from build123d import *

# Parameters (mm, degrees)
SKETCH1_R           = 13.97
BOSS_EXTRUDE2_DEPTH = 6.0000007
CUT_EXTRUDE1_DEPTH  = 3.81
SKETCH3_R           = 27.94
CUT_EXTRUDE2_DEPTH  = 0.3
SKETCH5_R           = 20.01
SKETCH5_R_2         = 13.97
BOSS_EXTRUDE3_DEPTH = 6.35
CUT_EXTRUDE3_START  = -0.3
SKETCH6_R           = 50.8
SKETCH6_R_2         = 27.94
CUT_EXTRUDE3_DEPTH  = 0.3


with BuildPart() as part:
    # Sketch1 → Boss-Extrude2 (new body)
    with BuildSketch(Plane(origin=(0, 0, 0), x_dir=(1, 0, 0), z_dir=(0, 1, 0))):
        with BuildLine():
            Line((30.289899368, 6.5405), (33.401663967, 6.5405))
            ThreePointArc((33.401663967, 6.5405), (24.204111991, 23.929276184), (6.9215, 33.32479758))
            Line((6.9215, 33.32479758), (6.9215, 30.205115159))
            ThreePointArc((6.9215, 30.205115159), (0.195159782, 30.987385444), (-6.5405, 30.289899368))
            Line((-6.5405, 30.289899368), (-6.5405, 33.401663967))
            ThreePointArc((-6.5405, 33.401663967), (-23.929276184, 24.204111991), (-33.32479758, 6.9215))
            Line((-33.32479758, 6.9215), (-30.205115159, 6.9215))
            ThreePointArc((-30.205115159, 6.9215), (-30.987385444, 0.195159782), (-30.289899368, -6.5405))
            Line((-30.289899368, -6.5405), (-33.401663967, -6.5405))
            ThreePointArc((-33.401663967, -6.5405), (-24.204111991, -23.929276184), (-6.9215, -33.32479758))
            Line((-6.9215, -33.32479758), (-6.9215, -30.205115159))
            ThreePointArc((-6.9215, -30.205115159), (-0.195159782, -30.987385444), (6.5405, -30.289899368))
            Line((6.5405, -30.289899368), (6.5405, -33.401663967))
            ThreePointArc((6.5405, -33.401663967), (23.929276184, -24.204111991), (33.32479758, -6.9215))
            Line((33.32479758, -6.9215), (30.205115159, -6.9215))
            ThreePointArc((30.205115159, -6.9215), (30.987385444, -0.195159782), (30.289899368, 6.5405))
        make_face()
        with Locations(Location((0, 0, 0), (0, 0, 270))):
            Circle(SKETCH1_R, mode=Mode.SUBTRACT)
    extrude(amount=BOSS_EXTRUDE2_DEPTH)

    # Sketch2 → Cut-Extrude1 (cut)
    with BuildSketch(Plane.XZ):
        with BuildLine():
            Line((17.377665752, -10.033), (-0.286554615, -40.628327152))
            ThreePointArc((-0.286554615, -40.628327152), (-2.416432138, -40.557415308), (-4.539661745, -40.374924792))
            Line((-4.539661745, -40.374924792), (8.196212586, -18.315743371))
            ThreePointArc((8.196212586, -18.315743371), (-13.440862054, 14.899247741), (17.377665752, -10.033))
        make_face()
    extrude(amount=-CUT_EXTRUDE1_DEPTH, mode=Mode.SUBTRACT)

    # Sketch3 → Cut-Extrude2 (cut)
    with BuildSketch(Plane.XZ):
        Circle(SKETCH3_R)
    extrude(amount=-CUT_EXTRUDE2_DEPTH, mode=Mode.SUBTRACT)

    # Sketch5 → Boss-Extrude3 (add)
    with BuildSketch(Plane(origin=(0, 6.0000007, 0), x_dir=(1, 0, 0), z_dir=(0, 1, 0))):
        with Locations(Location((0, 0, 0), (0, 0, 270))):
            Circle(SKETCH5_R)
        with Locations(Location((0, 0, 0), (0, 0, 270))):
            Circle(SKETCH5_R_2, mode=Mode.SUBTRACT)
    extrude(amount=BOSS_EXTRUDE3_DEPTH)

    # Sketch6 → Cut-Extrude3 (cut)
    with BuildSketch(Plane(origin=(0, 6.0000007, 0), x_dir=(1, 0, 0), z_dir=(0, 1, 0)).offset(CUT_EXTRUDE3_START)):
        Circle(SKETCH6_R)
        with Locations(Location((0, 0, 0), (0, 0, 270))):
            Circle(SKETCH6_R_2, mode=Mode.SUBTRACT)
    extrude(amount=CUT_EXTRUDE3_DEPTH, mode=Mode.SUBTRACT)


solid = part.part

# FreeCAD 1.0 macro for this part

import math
import FreeCAD as App
import Part
import Sketcher
from FreeCAD import Vector
Q = App.Units.Quantity

doc = App.newDocument("Part")
body = doc.addObject("PartDesign::Body", "Body")

sketch1 = body.newObject("Sketcher::SketchObject", "Sketch")
sketch1.AttachmentSupport = (doc.getObject("XZ_Plane"), [""])
sketch1.MapMode = "FlatFace"
sketch1.addGeometry([
    Part.LineSegment(Vector(30.289899, -6.5405, 0), Vector(33.401664, -6.5405, 0)),
    Part.ArcOfCircle(Part.Circle(Vector(0, 0, 0), Vector(0, 0, 1), 34.036), math.radians(-78.266593), math.radians(-11.07911)),
    Part.LineSegment(Vector(6.9215, -33.324798, 0), Vector(6.9215, -30.205115, 0)),
    Part.ArcOfCircle(Part.Circle(Vector(0, 0, 0), Vector(0, 0, 1), 30.988), math.radians(-102.184805), math.radians(-77.093502)),
    Part.LineSegment(Vector(-6.5405, -30.289899, 0), Vector(-6.5405, -33.401664, 0)),
    Part.ArcOfCircle(Part.Circle(Vector(0, 0, 0), Vector(0, 0, 1), 34.036), math.radians(-168.266593), math.radians(-101.07911)),
    Part.LineSegment(Vector(-33.324798, -6.9215, 0), Vector(-30.205115, -6.9215, 0)),
    Part.ArcOfCircle(Part.Circle(Vector(0, 0, 0), Vector(0, 0, 1), 30.988), math.radians(167.815195), math.radians(192.906498)),
    Part.LineSegment(Vector(-30.289899, 6.5405, 0), Vector(-33.401664, 6.5405, 0)),
    Part.ArcOfCircle(Part.Circle(Vector(0, 0, 0), Vector(0, 0, 1), 34.036), math.radians(101.733407), math.radians(168.92089)),
    Part.LineSegment(Vector(-6.9215, 33.324798, 0), Vector(-6.9215, 30.205115, 0)),
    Part.ArcOfCircle(Part.Circle(Vector(0, 0, 0), Vector(0, 0, 1), 30.988), math.radians(77.815195), math.radians(102.906498)),
    Part.LineSegment(Vector(6.5405, 30.289899, 0), Vector(6.5405, 33.401664, 0)),
    Part.ArcOfCircle(Part.Circle(Vector(0, 0, 0), Vector(0, 0, 1), 34.036), math.radians(11.733407), math.radians(78.92089)),
    Part.LineSegment(Vector(33.324798, 6.9215, 0), Vector(30.205115, 6.9215, 0)),
    Part.ArcOfCircle(Part.Circle(Vector(0, 0, 0), Vector(0, 0, 1), 30.988), math.radians(-12.184805), math.radians(12.906498)),
    Part.Circle(Vector(0, 0, 0), Vector(0, 0, 1), 13.97),
], False)
sketch1.addConstraint([
    Sketcher.Constraint("Coincident", 0, 2, 1, 2),
    Sketcher.Constraint("Coincident", 1, 1, 2, 1),
    Sketcher.Constraint("Coincident", 2, 2, 3, 2),
    Sketcher.Constraint("Coincident", 3, 1, 4, 1),
    Sketcher.Constraint("Coincident", 4, 2, 5, 2),
    Sketcher.Constraint("Coincident", 5, 1, 6, 1),
    Sketcher.Constraint("Coincident", 6, 2, 7, 2),
    Sketcher.Constraint("Coincident", 7, 1, 8, 1),
    Sketcher.Constraint("Coincident", 8, 2, 9, 2),
    Sketcher.Constraint("Coincident", 9, 1, 10, 1),
    Sketcher.Constraint("Coincident", 10, 2, 11, 2),
    Sketcher.Constraint("Coincident", 11, 1, 12, 1),
    Sketcher.Constraint("Coincident", 12, 2, 13, 2),
    Sketcher.Constraint("Coincident", 13, 1, 14, 1),
    Sketcher.Constraint("Coincident", 14, 2, 15, 2),
    Sketcher.Constraint("Coincident", 15, 1, 0, 1),
    Sketcher.Constraint("Horizontal", 0),
    Sketcher.Constraint("Vertical", 2),
    Sketcher.Constraint("Vertical", 4),
    Sketcher.Constraint("Horizontal", 6),
    Sketcher.Constraint("Horizontal", 8),
    Sketcher.Constraint("Vertical", 10),
    Sketcher.Constraint("Vertical", 12),
    Sketcher.Constraint("Horizontal", 14),
    Sketcher.Constraint("Coincident", 1, 3, -1, 1),
    Sketcher.Constraint("Coincident", 3, 3, -1, 1),
    Sketcher.Constraint("Coincident", 5, 3, -1, 1),
    Sketcher.Constraint("Coincident", 7, 3, -1, 1),
    Sketcher.Constraint("Coincident", 9, 3, -1, 1),
    Sketcher.Constraint("Coincident", 11, 3, -1, 1),
    Sketcher.Constraint("Coincident", 13, 3, -1, 1),
    Sketcher.Constraint("Coincident", 15, 3, -1, 1),
    Sketcher.Constraint("Coincident", 16, 3, -1, 1),
    Sketcher.Constraint("Equal", 1, 5),
    Sketcher.Constraint("Equal", 3, 7),
    Sketcher.Constraint("Equal", 5, 9),
    Sketcher.Constraint("Equal", 7, 11),
    Sketcher.Constraint("Equal", 9, 13),
    Sketcher.Constraint("Equal", 11, 15),
    Sketcher.Constraint("Equal", 0, 8),
    Sketcher.Constraint("Equal", 6, 14),
    Sketcher.Constraint("Equal", 14, 2),
    Sketcher.Constraint("Equal", 8, 4),
    Sketcher.Constraint("Equal", 2, 10),
    Sketcher.Constraint("Equal", 4, 12),
    Sketcher.Constraint("Diameter", 16, Q("1.1 in")),
    Sketcher.Constraint("Radius", 1, Q("1.34 in")),
    Sketcher.Constraint("Radius", 3, Q("1.22 in")),
    Sketcher.Constraint("DistanceX", 3, 1, 2, 2, Q("0.53 in")),
    Sketcher.Constraint("DistanceY", 1, 1, -1, 1, Q("1.3119999 in")),
])
pad1 = body.newObject("PartDesign::Pad", "Pad")
pad1.Profile = sketch1
pad1.Length = 6.000001
pad1.Reversed = True

sketch2 = body.newObject("Sketcher::SketchObject", "Sketch001")
sketch2.AttachmentSupport = (doc.getObject("XZ_Plane"), [""])
sketch2.MapMode = "FlatFace"
sketch2.addGeometry([
    Part.LineSegment(Vector(-0.286555, -40.628327, 0), Vector(17.377666, -10.033, 0)),
    Part.ArcOfCircle(Part.Circle(Vector(0, 0, 0), Vector(0, 0, 1), 20.066), math.radians(-30), math.radians(294.108301)),
    Part.LineSegment(Vector(8.196213, -18.315743, 0), Vector(-4.539662, -40.374925, 0)),
    Part.ArcOfCircle(Part.Circle(Vector(0, 0, 0), Vector(0, 0, 1), 40.629337), math.radians(-96.415259), math.radians(-90.404105)),
], False)
sketch2.addConstraint([
    Sketcher.Constraint("Tangent", 0, 2, 1, 1),
    Sketcher.Constraint("Coincident", 1, 2, 2, 1),
    Sketcher.Constraint("Coincident", 2, 2, 3, 1),
    Sketcher.Constraint("Coincident", 3, 2, 0, 1),
    Sketcher.Constraint("Coincident", 1, 3, -1, 1),
    Sketcher.Constraint("Coincident", 3, 3, -1, 1),
    Sketcher.Constraint("Parallel", 0, 2),
    Sketcher.Constraint("Radius", 1, Q("0.79 in")),
    Sketcher.Constraint("Angle", 0, Q("60 deg")),
    Sketcher.Constraint("Radius", 3, Q("40.629337 mm")),
    Sketcher.Constraint("Distance", 2, Q("25.471749 mm")),
])
pocket1 = body.newObject("PartDesign::Pocket", "Pocket")
pocket1.Profile = sketch2
pocket1.Length = Q("0.15 in")

sketch3 = body.newObject("Sketcher::SketchObject", "Sketch002")
sketch3.AttachmentSupport = (doc.getObject("XZ_Plane"), [""])
sketch3.MapMode = "FlatFace"
sketch3.addGeometry(Part.Circle(Vector(0, 0, 0), Vector(0, 0, 1), 27.94), False)
sketch3.addConstraint([
    Sketcher.Constraint("Coincident", 0, 3, -1, 1),
    Sketcher.Constraint("Diameter", 0, Q("2.2 in")),
])
pocket2 = body.newObject("PartDesign::Pocket", "Pocket001")
pocket2.Profile = sketch3
pocket2.Length = 0.3

sketch4 = body.newObject("Sketcher::SketchObject", "Sketch003")
sketch4.AttachmentSupport = (doc.getObject("XZ_Plane"), [""])
sketch4.MapMode = "FlatFace"
sketch4.AttachmentOffset = App.Placement(Vector(0, 0, -6.000001), App.Rotation())
sketch4.addGeometry([
    Part.Circle(Vector(0, 0, 0), Vector(0, 0, 1), 20.01),
    Part.Circle(Vector(0, 0, 0), Vector(0, 0, 1), 13.97),
], False)
sketch4.addConstraint([
    Sketcher.Constraint("Coincident", 0, 3, -1, 1),
    Sketcher.Constraint("Coincident", 1, 3, -1, 1),
    Sketcher.Constraint("Diameter", 1, Q("1.1 in")),
    Sketcher.Constraint("Diameter", 0, Q("40.02 mm")),
])
pad2 = body.newObject("PartDesign::Pad", "Pad001")
pad2.Profile = sketch4
pad2.Length = Q("0.25 in")
pad2.Reversed = True

sketch5 = body.newObject("Sketcher::SketchObject", "Sketch004")
sketch5.AttachmentSupport = (doc.getObject("XZ_Plane"), [""])
sketch5.MapMode = "FlatFace"
sketch5.AttachmentOffset = App.Placement(Vector(0, 0, -5.700001), App.Rotation())
sketch5.addGeometry([
    Part.Circle(Vector(0, 0, 0), Vector(0, 0, 1), 50.8),
    Part.Circle(Vector(0, 0, 0), Vector(0, 0, 1), 27.94),
], False)
sketch5.addConstraint([
    Sketcher.Constraint("Coincident", 0, 3, -1, 1),
    Sketcher.Constraint("Coincident", 1, 3, -1, 1),
    Sketcher.Constraint("Diameter", 0, Q("4 in")),
    Sketcher.Constraint("Diameter", 1, Q("2.2 in")),
])
pocket3 = body.newObject("PartDesign::Pocket", "Pocket002")
pocket3.Profile = sketch5
pocket3.Length = 0.3

doc.recompute()
